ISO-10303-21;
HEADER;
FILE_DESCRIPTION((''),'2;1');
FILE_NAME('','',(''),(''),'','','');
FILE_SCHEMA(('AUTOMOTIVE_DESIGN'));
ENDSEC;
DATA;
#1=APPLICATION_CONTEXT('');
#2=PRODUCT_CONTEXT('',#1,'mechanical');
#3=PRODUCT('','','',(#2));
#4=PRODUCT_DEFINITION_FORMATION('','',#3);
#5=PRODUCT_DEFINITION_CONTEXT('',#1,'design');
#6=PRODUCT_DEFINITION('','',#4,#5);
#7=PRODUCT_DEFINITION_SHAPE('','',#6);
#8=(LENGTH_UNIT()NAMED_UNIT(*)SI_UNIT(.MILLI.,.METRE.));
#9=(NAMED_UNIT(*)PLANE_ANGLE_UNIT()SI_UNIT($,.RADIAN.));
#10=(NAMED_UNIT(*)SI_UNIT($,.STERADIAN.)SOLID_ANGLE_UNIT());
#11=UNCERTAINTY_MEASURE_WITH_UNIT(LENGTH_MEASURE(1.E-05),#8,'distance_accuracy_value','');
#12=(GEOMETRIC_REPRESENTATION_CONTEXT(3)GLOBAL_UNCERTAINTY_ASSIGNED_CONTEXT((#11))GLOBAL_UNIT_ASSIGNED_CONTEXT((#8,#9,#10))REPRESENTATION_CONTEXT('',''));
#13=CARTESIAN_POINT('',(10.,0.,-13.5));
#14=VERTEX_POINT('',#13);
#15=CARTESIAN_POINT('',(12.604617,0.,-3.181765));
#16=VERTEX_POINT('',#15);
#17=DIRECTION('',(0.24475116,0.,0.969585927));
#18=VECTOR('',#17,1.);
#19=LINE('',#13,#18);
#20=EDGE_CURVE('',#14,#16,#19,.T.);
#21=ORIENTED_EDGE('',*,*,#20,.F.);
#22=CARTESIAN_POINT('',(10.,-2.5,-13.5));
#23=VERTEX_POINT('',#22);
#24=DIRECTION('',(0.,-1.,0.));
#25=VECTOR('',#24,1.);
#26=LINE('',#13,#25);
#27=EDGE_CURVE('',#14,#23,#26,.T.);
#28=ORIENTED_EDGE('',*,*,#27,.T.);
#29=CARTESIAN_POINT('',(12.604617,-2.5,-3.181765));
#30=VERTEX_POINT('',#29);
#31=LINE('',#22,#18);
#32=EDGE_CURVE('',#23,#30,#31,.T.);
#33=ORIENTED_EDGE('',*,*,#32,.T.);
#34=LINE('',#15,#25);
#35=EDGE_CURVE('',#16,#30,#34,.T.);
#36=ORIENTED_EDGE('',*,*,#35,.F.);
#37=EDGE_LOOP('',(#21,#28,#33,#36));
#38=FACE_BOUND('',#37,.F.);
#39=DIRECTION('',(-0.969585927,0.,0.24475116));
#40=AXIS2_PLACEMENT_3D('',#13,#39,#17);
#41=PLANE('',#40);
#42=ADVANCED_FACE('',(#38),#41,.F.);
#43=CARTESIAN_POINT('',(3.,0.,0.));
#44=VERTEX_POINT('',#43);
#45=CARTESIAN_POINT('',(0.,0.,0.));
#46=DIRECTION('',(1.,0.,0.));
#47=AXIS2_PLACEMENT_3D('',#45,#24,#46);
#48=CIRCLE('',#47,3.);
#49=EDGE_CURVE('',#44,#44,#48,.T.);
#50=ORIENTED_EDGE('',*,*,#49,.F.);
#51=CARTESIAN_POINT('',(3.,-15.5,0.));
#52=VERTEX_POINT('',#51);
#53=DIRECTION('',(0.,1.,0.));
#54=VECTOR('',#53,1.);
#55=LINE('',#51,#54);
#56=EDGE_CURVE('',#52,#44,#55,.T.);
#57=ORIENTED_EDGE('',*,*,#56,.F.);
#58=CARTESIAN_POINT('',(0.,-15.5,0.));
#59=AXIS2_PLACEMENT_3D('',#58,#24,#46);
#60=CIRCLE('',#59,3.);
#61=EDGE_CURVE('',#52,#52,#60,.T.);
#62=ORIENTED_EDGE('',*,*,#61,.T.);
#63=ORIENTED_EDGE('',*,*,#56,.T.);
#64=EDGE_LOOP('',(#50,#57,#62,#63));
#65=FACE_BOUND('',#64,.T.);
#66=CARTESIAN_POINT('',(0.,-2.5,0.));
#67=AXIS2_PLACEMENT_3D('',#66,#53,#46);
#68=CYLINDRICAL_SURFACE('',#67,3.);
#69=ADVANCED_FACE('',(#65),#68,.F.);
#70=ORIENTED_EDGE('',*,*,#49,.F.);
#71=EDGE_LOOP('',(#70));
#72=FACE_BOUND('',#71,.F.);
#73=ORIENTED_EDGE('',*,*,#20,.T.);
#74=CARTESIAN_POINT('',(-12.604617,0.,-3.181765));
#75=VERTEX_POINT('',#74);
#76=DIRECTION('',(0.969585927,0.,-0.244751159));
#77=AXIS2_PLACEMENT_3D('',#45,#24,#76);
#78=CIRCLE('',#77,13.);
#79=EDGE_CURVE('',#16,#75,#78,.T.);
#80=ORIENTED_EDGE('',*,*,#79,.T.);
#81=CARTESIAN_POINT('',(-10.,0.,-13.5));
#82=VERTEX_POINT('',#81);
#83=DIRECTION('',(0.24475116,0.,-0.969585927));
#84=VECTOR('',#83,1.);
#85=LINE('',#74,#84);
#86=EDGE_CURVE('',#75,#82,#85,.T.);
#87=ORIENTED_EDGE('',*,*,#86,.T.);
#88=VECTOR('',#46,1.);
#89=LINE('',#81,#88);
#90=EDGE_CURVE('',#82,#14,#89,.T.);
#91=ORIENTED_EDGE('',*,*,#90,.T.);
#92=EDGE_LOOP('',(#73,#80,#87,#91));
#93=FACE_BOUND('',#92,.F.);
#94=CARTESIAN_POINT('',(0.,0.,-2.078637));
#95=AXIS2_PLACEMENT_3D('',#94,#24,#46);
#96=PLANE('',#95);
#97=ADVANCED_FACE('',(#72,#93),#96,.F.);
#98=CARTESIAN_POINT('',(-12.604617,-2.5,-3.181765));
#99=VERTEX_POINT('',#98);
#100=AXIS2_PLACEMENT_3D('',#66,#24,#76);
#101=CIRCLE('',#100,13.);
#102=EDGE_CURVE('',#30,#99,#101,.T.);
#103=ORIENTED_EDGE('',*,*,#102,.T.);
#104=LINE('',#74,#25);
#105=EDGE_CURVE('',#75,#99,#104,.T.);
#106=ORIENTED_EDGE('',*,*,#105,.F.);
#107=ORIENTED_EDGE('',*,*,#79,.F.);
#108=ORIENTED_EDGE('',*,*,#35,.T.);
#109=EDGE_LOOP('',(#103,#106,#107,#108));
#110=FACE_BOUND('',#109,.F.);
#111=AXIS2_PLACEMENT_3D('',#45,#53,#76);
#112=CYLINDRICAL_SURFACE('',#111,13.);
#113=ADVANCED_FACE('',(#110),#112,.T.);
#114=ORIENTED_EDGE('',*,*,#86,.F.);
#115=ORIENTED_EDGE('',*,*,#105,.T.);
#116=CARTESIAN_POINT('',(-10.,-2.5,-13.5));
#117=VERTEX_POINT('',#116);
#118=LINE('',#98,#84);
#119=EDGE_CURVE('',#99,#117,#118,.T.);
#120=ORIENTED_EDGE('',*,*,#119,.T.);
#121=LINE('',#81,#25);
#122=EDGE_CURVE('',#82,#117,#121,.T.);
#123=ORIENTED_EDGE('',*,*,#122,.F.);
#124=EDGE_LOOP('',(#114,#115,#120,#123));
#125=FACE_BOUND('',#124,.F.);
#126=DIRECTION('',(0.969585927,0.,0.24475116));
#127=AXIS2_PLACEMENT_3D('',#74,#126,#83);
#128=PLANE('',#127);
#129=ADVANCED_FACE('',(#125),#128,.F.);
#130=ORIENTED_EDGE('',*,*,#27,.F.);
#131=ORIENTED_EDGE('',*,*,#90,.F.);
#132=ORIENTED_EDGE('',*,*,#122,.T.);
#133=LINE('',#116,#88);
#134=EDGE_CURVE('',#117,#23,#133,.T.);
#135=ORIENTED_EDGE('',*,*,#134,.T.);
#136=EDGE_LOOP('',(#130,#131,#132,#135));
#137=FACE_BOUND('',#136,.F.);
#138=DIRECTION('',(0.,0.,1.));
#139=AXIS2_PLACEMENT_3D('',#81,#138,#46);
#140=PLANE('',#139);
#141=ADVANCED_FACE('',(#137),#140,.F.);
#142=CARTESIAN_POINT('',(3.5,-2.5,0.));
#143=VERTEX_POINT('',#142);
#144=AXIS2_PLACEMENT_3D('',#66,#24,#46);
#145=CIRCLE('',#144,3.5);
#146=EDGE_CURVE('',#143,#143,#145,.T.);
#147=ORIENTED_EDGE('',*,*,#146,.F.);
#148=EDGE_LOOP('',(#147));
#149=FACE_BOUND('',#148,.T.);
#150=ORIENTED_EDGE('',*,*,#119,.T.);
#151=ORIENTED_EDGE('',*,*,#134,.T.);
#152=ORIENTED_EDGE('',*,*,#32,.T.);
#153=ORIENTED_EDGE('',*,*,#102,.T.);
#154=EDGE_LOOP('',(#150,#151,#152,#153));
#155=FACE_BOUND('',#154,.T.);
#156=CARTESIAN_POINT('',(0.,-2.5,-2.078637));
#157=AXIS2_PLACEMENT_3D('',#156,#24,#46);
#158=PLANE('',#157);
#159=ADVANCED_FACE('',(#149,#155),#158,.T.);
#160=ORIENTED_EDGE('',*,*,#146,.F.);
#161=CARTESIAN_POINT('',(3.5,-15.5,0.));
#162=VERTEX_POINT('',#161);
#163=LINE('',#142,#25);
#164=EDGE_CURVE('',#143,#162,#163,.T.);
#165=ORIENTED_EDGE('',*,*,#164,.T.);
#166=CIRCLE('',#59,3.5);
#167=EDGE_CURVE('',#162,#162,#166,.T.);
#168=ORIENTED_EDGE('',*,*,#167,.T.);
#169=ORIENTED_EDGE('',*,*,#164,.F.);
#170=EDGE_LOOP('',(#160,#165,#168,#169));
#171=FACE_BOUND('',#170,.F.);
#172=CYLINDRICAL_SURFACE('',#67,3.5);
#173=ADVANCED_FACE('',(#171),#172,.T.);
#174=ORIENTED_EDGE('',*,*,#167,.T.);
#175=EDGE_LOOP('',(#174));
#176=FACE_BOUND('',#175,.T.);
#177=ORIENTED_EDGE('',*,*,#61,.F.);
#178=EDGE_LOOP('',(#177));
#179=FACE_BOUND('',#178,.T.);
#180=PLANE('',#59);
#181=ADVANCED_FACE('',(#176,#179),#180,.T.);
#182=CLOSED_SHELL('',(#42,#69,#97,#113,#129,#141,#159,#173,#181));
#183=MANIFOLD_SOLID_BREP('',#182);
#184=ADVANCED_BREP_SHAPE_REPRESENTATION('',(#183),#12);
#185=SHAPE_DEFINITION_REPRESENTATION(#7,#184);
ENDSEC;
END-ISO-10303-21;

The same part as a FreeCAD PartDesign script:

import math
import FreeCAD as App
import Part
import Sketcher
from FreeCAD import Vector
Q = App.Units.Quantity

doc = App.newDocument("Part")
body = doc.addObject("PartDesign::Body", "Body")

# Sketch on XZ plane
sketch1 = doc.addObject("Sketcher::SketchObject", "Sketch")
body.addObject(sketch1)
sketch1.AttachmentSupport = (doc.XZ_Plane, [""])
sketch1.MapMode = "FlatFace"
sketch1.addGeometry([
    Part.LineSegment(Vector(10, -13.5, 0), Vector(12.6, -3.2, 0)),  # 0
    Part.ArcOfCircle(Part.Circle(Vector(0, 0, 0), Vector(0, 0, 1), 13), math.radians(-14), math.radians(194)),  # 1
    Part.LineSegment(Vector(-12.6, -3.2, 0), Vector(-10, -13.5, 0)),  # 2
    Part.LineSegment(Vector(-10, -13.5, 0), Vector(10, -13.5, 0)),  # 3
    Part.Circle(Vector(0, 0, 0), Vector(0, 0, 1), 3),  # 4
], False)
sketch1.addConstraint([
    Sketcher.Constraint("Tangent", 0, 2, 1, 1),
    Sketcher.Constraint("Tangent", 1, 2, 2, 1),
    Sketcher.Constraint("Coincident", 2, 2, 3, 1),
    Sketcher.Constraint("Coincident", 3, 2, 0, 1),
    Sketcher.Constraint("Horizontal", 3),
    Sketcher.Constraint("Coincident", 1, 3, -1, 1),
    Sketcher.Constraint("Coincident", 4, 3, -1, 1),
    Sketcher.Constraint("Horizontal", 0, 2, 1, 2),
    Sketcher.Constraint("Diameter", 4, Q("6 mm")),
    Sketcher.Constraint("Radius", 1, Q("13 mm")),
    Sketcher.Constraint("DistanceX", 3, 1, 3, 2, Q("20 mm")),
    Sketcher.Constraint("DistanceY", 2, 2, -1, 1, Q("13.5 mm")),
])
pad1 = doc.addObject("PartDesign::Pad", "Pad")
body.addObject(pad1)
pad1.Profile = sketch1
pad1.Length = 2.5

# Sketch on XZ plane
sketch2 = doc.addObject("Sketcher::SketchObject", "Sketch001")
body.addObject(sketch2)
sketch2.AttachmentSupport = (doc.XZ_Plane, [""])
sketch2.MapMode = "FlatFace"
sketch2.AttachmentOffset = App.Placement(Vector(0, 0, 2.5), App.Rotation())
sketch2.addGeometry([
    Part.Circle(Vector(0, 0, 0), Vector(0, 0, 1), 3.5),
    Part.Circle(Vector(0, 0, 0), Vector(0, 0, 1), 3),
], False)
sketch2.addConstraint([
    Sketcher.Constraint("Coincident", 0, 3, -1, 1),
    Sketcher.Constraint("Coincident", 1, 3, -1, 1),
    Sketcher.Constraint("Diameter", 0, Q("7 mm")),
    Sketcher.Constraint("Diameter", 1, Q("6 mm")),
])
pad2 = doc.addObject("PartDesign::Pad", "Pad001")
body.addObject(pad2)
pad2.Profile = sketch2
pad2.Length = 13

doc.recompute()
